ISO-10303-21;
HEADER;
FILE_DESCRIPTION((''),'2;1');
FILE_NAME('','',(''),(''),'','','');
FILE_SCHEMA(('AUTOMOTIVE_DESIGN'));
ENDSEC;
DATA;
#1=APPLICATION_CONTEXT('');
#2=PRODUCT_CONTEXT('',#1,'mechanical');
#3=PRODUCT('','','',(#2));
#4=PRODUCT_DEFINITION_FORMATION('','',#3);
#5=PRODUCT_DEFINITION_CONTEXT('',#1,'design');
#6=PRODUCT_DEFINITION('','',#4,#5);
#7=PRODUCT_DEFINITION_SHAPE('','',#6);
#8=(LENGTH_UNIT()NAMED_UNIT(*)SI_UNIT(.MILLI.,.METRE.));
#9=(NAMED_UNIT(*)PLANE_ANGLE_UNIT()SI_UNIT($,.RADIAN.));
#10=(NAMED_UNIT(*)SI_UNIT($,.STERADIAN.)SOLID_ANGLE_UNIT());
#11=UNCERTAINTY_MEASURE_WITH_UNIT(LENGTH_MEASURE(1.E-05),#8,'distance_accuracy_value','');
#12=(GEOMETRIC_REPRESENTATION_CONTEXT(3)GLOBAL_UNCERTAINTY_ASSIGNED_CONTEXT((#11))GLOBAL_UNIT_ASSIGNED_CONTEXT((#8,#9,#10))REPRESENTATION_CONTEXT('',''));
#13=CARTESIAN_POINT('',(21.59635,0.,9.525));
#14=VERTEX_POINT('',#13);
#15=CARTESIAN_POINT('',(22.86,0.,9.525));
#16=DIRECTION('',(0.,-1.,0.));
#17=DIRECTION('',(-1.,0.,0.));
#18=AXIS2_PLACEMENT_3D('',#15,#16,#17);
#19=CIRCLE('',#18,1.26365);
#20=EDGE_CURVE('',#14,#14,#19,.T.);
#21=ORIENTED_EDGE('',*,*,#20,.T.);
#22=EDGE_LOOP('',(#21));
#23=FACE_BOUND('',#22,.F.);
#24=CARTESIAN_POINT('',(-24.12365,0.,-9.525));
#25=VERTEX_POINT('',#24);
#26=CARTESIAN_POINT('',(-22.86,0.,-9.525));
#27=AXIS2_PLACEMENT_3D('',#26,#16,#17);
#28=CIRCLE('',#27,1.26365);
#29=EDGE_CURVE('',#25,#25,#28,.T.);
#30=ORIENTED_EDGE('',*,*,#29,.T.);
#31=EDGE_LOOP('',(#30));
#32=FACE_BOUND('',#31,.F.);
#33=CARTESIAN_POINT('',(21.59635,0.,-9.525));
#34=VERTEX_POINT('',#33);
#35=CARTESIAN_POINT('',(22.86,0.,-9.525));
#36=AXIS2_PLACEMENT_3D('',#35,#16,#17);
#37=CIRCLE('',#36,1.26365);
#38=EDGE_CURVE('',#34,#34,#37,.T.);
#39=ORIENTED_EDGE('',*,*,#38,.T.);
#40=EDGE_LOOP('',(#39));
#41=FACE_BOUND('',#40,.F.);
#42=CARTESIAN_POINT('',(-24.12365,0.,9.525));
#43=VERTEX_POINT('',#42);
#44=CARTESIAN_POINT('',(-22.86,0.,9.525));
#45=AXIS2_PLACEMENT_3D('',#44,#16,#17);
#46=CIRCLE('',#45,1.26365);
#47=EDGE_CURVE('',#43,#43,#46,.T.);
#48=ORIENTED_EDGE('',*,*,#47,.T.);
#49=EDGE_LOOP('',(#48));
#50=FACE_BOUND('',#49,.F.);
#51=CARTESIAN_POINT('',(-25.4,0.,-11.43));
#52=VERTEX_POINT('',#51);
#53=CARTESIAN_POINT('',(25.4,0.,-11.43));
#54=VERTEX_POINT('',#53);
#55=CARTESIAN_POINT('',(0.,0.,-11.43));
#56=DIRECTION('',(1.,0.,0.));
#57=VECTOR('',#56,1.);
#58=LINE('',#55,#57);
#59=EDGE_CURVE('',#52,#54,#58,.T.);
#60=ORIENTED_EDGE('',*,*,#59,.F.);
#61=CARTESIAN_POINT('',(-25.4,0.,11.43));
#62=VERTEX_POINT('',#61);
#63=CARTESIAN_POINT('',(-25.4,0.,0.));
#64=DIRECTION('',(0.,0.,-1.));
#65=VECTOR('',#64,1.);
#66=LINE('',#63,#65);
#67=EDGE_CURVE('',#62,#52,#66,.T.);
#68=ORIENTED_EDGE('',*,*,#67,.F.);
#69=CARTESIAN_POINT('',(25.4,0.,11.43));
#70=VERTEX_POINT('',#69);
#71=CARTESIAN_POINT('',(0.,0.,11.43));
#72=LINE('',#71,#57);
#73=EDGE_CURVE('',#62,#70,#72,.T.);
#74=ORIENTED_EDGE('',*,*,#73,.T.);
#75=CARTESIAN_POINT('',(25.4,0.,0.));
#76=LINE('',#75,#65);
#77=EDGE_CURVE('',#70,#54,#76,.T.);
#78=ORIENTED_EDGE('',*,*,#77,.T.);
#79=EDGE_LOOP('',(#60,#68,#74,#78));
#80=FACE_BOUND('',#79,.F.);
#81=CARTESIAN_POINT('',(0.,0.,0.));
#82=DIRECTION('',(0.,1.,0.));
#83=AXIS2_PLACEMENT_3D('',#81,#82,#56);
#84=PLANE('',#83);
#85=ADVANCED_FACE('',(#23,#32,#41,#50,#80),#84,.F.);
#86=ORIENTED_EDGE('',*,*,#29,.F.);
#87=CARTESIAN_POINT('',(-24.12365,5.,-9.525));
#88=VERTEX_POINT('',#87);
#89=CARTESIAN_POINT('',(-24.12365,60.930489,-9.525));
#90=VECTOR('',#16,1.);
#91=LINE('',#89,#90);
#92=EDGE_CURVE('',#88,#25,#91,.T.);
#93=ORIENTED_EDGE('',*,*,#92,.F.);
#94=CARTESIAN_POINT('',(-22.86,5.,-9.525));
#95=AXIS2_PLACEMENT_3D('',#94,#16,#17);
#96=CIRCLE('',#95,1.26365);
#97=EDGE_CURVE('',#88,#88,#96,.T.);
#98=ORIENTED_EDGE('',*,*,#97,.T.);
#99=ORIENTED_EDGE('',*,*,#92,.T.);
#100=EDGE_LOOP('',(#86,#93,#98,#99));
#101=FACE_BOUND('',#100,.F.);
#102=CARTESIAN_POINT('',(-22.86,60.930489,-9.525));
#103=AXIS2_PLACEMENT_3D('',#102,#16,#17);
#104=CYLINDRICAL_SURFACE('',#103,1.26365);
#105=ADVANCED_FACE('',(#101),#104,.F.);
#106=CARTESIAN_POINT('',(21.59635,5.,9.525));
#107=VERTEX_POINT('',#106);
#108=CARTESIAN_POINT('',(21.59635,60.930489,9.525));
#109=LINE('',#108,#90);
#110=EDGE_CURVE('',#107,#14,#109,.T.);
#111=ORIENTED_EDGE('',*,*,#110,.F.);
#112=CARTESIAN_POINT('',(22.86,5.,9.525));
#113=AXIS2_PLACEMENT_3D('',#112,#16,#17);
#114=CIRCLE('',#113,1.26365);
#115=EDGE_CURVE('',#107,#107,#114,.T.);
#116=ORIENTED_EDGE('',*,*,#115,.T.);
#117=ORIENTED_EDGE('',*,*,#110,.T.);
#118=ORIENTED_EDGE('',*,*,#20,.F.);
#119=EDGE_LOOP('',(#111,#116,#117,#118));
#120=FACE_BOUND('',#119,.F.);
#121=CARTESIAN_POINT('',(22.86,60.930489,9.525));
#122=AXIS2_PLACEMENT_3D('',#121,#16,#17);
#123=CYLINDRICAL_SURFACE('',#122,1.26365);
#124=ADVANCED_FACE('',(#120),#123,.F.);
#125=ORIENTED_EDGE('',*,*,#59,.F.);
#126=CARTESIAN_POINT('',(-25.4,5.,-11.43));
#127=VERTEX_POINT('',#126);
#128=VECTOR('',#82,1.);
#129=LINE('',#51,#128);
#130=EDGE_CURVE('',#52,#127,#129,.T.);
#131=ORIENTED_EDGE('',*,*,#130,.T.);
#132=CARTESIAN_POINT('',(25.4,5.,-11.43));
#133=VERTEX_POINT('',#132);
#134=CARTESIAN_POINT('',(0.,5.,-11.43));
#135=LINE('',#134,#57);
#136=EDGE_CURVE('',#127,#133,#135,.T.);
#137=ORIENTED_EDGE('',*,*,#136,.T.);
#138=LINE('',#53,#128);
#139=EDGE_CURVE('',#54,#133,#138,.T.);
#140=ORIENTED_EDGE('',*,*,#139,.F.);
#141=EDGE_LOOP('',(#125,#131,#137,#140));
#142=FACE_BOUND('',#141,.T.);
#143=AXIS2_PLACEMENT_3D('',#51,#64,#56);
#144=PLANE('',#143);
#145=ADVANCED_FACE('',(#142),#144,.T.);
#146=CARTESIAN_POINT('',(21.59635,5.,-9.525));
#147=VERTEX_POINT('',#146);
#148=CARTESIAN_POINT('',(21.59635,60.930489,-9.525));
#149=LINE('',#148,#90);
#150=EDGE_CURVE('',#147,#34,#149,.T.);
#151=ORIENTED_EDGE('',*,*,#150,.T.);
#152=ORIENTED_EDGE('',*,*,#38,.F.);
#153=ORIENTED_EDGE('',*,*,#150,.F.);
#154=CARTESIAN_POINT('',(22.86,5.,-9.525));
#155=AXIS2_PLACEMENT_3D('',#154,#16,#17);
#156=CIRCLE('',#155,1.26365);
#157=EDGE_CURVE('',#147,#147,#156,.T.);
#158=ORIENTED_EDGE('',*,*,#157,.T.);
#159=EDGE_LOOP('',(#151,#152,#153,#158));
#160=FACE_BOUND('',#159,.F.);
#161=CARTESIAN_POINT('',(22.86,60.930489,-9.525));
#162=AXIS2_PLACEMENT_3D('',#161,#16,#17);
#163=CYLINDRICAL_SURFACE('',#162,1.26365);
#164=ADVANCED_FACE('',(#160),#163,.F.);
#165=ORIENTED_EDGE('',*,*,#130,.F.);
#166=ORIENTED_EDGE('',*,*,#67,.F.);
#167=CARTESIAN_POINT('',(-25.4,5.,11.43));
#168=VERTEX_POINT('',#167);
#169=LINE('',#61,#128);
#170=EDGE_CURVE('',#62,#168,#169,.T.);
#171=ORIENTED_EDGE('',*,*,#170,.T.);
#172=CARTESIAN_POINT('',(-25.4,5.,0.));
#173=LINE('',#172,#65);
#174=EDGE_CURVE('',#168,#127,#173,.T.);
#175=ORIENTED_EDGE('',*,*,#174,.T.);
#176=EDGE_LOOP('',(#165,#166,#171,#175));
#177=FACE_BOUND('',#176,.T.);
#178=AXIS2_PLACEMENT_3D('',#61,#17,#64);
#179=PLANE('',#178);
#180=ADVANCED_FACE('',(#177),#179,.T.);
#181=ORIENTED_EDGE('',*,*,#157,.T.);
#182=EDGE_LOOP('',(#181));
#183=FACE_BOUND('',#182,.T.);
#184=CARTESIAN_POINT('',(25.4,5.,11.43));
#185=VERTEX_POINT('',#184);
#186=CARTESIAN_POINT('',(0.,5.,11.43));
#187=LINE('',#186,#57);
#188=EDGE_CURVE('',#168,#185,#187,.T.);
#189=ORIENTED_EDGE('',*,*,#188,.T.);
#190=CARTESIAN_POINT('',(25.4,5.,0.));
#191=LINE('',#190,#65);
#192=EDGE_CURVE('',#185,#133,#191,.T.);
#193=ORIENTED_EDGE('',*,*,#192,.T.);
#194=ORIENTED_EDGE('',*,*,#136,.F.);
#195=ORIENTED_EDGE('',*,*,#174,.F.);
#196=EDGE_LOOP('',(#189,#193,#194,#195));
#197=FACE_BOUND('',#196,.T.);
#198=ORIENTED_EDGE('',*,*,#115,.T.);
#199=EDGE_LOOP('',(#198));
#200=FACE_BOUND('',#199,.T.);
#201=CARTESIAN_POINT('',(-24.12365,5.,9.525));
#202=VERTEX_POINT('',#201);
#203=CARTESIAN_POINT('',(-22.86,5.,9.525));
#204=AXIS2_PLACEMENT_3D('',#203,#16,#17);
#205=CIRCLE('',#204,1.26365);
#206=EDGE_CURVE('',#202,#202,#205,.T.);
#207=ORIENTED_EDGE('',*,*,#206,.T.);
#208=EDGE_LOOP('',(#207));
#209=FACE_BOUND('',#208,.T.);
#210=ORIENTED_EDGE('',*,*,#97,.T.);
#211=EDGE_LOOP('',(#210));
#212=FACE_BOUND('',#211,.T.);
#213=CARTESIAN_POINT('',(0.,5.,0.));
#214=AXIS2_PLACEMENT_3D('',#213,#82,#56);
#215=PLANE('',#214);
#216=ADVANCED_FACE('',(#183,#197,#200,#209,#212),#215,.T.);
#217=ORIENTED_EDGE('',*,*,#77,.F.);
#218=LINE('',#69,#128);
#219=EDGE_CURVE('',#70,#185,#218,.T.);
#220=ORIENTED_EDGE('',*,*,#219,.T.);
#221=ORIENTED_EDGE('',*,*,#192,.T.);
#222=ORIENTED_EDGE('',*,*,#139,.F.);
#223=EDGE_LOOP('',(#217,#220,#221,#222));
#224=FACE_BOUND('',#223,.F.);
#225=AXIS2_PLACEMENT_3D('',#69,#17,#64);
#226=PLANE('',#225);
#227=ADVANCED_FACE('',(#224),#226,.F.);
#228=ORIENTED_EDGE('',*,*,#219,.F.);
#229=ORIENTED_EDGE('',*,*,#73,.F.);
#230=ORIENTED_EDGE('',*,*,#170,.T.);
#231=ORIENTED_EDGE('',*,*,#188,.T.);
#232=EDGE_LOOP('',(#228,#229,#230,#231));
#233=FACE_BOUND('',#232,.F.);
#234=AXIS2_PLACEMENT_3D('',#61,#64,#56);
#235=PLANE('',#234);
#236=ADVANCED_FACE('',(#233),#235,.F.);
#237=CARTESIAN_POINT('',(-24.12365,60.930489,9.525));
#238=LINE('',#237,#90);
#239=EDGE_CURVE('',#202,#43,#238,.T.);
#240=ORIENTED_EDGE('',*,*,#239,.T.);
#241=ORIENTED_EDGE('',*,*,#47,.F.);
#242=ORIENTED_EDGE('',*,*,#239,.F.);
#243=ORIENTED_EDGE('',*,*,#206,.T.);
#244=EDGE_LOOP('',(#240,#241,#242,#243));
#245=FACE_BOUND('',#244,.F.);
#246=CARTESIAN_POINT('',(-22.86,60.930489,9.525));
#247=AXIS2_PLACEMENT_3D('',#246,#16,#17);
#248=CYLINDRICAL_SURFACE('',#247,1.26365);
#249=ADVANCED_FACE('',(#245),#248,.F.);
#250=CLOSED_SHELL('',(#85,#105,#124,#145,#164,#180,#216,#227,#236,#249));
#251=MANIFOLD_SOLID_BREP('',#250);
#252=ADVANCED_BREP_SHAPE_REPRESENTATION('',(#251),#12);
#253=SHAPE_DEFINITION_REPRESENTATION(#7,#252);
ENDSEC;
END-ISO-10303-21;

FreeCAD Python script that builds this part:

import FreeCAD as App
import Part
import Sketcher
Q = App.Units.Quantity

doc = App.newDocument("Part")
params = doc.addObject("Spreadsheet::Sheet", "Params")
for row, (alias, value) in enumerate([
    ("sketch1_width", "2 in"),
    ("sketch1_height", "0.9 in"),
    ("pad1_length", "5 mm"),
    ("hole_diameter", "0.0995 in"),
], start=1):
    params.set(f"A{row}", alias)
    params.set(f"B{row}", "=" + value)
    params.setAlias(f"B{row}", alias)

body = doc.addObject("PartDesign::Body", "Body")

sketch1 = body.newObject("Sketcher::SketchObject", "Sketch")
sketch1.AttachmentSupport = (doc.getObject("XZ_Plane"), [""])
sketch1.MapMode = "FlatFace"
sketch1.addGeometry(Part.LineSegment(App.Vector(-25, -11, 0), App.Vector(-25, 11, 0)), False)
sketch1.addGeometry(Part.LineSegment(App.Vector(-25, 11, 0), App.Vector(25, 11, 0)), False)
sketch1.addGeometry(Part.LineSegment(App.Vector(25, 11, 0), App.Vector(25, -11, 0)), False)
sketch1.addGeometry(Part.LineSegment(App.Vector(25, -11, 0), App.Vector(-25, -11, 0)), False)
sketch1.addConstraint(Sketcher.Constraint("Coincident", 0, 2, 1, 1))
sketch1.addConstraint(Sketcher.Constraint("Coincident", 1, 2, 2, 1))
sketch1.addConstraint(Sketcher.Constraint("Coincident", 2, 2, 3, 1))
sketch1.addConstraint(Sketcher.Constraint("Coincident", 3, 2, 0, 1))
sketch1.addConstraint(Sketcher.Constraint("Vertical", 0))
sketch1.addConstraint(Sketcher.Constraint("Horizontal", 1))
sketch1.addConstraint(Sketcher.Constraint("Vertical", 2))
sketch1.addConstraint(Sketcher.Constraint("Horizontal", 3))
sketch1.addConstraint(Sketcher.Constraint("Symmetric", 0, 2, 2, 2, -1, 1))
sketch1.addConstraint(Sketcher.Constraint("DistanceX", 1, 1, 1, 2, Q("2 in")))
sketch1.addConstraint(Sketcher.Constraint("DistanceY", 0, 1, 0, 2, Q("0.9 in")))
sketch1.setExpression("Constraints[9]", "Params.sketch1_width")
sketch1.setExpression("Constraints[10]", "Params.sketch1_height")
pad1 = body.newObject("PartDesign::Pad", "Pad")
pad1.Profile = sketch1
pad1.setExpression("Length", "Params.pad1_length")
pad1.Reversed = True

sketch2 = body.newObject("Sketcher::SketchObject", "Sketch001")
sketch2.AttachmentSupport = (doc.getObject("XZ_Plane"), [""])
sketch2.MapMode = "FlatFace"
sketch2.AttachmentOffset = App.Placement(App.Vector(0, 0, -5), App.Rotation())
sketch2.addGeometry(Part.Circle(App.Vector(-22.9, -9.5, 0), App.Vector(0, 0, 1), 1.3), False)
sketch2.addGeometry(Part.Circle(App.Vector(-22.9, 9.5, 0), App.Vector(0, 0, 1), 1.3), False)
sketch2.addGeometry(Part.Circle(App.Vector(22.9, -9.5, 0), App.Vector(0, 0, 1), 1.3), False)
sketch2.addGeometry(Part.Circle(App.Vector(22.9, 9.5, 0), App.Vector(0, 0, 1), 1.3), False)
sketch2.addConstraint(Sketcher.Constraint("Equal", 0, 1))
sketch2.addConstraint(Sketcher.Constraint("Equal", 1, 2))
sketch2.addConstraint(Sketcher.Constraint("Equal", 2, 3))
sketch2.addConstraint(Sketcher.Constraint("Symmetric", 1, 3, 2, 3, -1, 1))
sketch2.addConstraint(Sketcher.Constraint("Symmetric", 0, 3, 3, 3, -1, 1))
sketch2.addConstraint(Sketcher.Constraint("Symmetric", 0, 3, 2, 3, -2))
sketch2.addConstraint(Sketcher.Constraint("Diameter", 0, Q("0.0995 in")))
sketch2.addConstraint(Sketcher.Constraint("DistanceX", 0, 3, -1, 1, Q("0.9 in")))
sketch2.addConstraint(Sketcher.Constraint("DistanceY", 0, 3, 1, 3, Q("0.75 in")))
doc.recompute()
hole = body.newObject("PartDesign::Hole", "Hole")
hole.Profile = sketch2
hole.ThreadType = "None"
hole.setExpression("Diameter", "Params.hole_diameter")
hole.DepthType = "ThroughAll"
hole.Reversed = True

doc.recompute()
